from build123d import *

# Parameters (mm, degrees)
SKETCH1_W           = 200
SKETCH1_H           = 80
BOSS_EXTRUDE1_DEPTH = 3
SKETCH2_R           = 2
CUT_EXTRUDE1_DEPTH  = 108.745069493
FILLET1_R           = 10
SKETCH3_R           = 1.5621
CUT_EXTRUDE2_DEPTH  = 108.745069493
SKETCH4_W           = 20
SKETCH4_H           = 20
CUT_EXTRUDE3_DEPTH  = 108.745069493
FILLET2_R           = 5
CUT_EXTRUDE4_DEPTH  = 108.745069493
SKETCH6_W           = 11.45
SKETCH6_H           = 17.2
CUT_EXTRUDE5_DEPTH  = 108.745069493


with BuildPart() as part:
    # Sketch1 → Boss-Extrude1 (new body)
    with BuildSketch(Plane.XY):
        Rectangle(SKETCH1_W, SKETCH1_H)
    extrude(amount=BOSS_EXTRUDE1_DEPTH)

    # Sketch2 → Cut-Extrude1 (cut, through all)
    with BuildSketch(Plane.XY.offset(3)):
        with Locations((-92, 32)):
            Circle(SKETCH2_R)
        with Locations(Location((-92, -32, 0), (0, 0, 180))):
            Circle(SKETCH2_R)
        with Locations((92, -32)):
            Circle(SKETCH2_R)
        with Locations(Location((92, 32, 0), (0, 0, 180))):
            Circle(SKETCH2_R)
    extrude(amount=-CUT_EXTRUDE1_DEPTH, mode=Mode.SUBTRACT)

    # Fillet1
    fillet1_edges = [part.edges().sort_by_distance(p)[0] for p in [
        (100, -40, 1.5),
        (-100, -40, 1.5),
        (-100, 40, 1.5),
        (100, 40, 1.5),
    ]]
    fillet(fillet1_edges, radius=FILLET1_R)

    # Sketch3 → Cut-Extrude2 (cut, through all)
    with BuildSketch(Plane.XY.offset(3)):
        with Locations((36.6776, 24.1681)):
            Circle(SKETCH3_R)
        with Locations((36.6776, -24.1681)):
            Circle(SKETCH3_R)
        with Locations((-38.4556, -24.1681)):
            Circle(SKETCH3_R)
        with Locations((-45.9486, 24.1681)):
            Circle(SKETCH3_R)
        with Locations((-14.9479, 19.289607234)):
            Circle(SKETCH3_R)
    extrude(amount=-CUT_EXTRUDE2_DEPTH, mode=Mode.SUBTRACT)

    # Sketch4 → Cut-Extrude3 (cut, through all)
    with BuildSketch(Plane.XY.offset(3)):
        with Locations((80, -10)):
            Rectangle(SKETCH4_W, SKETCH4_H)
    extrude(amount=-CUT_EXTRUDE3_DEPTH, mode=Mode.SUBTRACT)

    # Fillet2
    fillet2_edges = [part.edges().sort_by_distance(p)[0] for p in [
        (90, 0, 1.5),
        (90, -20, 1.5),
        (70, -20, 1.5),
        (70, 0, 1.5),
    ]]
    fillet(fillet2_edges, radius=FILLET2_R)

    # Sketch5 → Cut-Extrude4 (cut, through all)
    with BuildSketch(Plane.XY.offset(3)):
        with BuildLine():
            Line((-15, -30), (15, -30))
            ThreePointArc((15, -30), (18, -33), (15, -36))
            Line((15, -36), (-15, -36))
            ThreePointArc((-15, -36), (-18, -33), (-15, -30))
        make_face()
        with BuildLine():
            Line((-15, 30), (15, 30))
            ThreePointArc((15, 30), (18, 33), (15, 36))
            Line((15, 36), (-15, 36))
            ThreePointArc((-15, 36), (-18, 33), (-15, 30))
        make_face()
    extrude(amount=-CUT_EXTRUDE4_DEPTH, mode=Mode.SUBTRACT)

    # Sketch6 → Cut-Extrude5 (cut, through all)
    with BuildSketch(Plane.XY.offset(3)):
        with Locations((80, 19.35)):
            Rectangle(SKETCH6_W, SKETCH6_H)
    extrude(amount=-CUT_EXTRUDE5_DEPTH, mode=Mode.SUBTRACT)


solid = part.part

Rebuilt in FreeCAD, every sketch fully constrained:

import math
import FreeCAD as App
import Part
import Sketcher
from FreeCAD import Vector
Q = App.Units.Quantity


def edges_at(feature, points):
    """Names of the edges that pass closest to the given points."""
    edges = feature.Shape.Edges
    near = lambda p: min(range(len(edges)), key=lambda i: edges[i].distToShape(Part.Vertex(*p))[0])
    return sorted({f"Edge{near(p) + 1}" for p in points})

doc = App.newDocument("Part")
body = doc.addObject("PartDesign::Body", "Body")

sketch1 = body.newObject("Sketcher::SketchObject", "Sketch")
sketch1.AttachmentSupport = (doc.getObject("XY_Plane"), [""])
sketch1.MapMode = "FlatFace"
sketch1.addGeometry(Part.LineSegment(Vector(-100, 40, 0), Vector(-100, -40, 0)), False)
sketch1.addGeometry(Part.LineSegment(Vector(-100, -40, 0), Vector(100, -40, 0)), False)
sketch1.addGeometry(Part.LineSegment(Vector(100, -40, 0), Vector(100, 40, 0)), False)
sketch1.addGeometry(Part.LineSegment(Vector(100, 40, 0), Vector(-100, 40, 0)), False)
sketch1.addConstraint(Sketcher.Constraint("Coincident", 0, 2, 1, 1))
sketch1.addConstraint(Sketcher.Constraint("Coincident", 1, 2, 2, 1))
sketch1.addConstraint(Sketcher.Constraint("Coincident", 2, 2, 3, 1))
sketch1.addConstraint(Sketcher.Constraint("Coincident", 3, 2, 0, 1))
sketch1.addConstraint(Sketcher.Constraint("Vertical", 0))
sketch1.addConstraint(Sketcher.Constraint("Horizontal", 1))
sketch1.addConstraint(Sketcher.Constraint("Vertical", 2))
sketch1.addConstraint(Sketcher.Constraint("Horizontal", 3))
sketch1.addConstraint(Sketcher.Constraint("Symmetric", 0, 2, 2, 2, -1, 1))
sketch1.addConstraint(Sketcher.Constraint("DistanceX", 1, 1, 1, 2, Q("200 mm")))
sketch1.addConstraint(Sketcher.Constraint("DistanceY", 0, 2, 0, 1, Q("80 mm")))
pad1 = body.newObject("PartDesign::Pad", "Pad")
pad1.Profile = sketch1
pad1.Length = 3

sketch2 = body.newObject("Sketcher::SketchObject", "Sketch001")
sketch2.AttachmentSupport = (doc.getObject("XY_Plane"), [""])
sketch2.MapMode = "FlatFace"
sketch2.AttachmentOffset = App.Placement(Vector(0, 0, 3), App.Rotation())
sketch2.addGeometry(Part.Circle(Vector(-92, 32, 0), Vector(0, 0, 1), 2), False)
sketch2.addGeometry(Part.Circle(Vector(-92, -32, 0), Vector(0, 0, 1), 2), False)
sketch2.addGeometry(Part.Circle(Vector(92, -32, 0), Vector(0, 0, 1), 2), False)
sketch2.addGeometry(Part.Circle(Vector(92, 32, 0), Vector(0, 0, 1), 2), False)
sketch2.addConstraint(Sketcher.Constraint("Equal", 0, 1))
sketch2.addConstraint(Sketcher.Constraint("Equal", 1, 2))
sketch2.addConstraint(Sketcher.Constraint("Equal", 2, 3))
sketch2.addConstraint(Sketcher.Constraint("Symmetric", 0, 3, 2, 3, -1, 1))
sketch2.addConstraint(Sketcher.Constraint("Symmetric", 1, 3, 3, 3, -1, 1))
sketch2.addConstraint(Sketcher.Constraint("Symmetric", 1, 3, 2, 3, -2))
sketch2.addConstraint(Sketcher.Constraint("Diameter", 0, Q("4 mm")))
sketch2.addConstraint(Sketcher.Constraint("DistanceX", 0, 3, -1, 1, Q("92 mm")))
sketch2.addConstraint(Sketcher.Constraint("DistanceY", -1, 1, 0, 3, Q("32 mm")))
pocket1 = body.newObject("PartDesign::Pocket", "Pocket")
pocket1.Profile = sketch2
pocket1.Type = "ThroughAll"
doc.recompute()

fillet = body.newObject("PartDesign::Fillet", "Fillet")
fillet.Base = (pocket1, edges_at(pocket1, [
    (100, -40, 1.5),
    (-100, -40, 1.5),
    (-100, 40, 1.5),
    (100, 40, 1.5),
]))
fillet.Radius = 10

sketch3 = body.newObject("Sketcher::SketchObject", "Sketch002")
sketch3.AttachmentSupport = (doc.getObject("XY_Plane"), [""])
sketch3.MapMode = "FlatFace"
sketch3.AttachmentOffset = App.Placement(Vector(0, 0, 3), App.Rotation())
sketch3.addGeometry(Part.Circle(Vector(36.6776, 24.1681, 0), Vector(0, 0, 1), 1.5621), False)
sketch3.addGeometry(Part.Circle(Vector(36.6776, -24.1681, 0), Vector(0, 0, 1), 1.5621), False)
sketch3.addGeometry(Part.Circle(Vector(-38.4556, -24.1681, 0), Vector(0, 0, 1), 1.5621), False)
sketch3.addGeometry(Part.Circle(Vector(-45.9486, 24.1681, 0), Vector(0, 0, 1), 1.5621), False)
sketch3.addGeometry(Part.Circle(Vector(-14.9479, 19.289607, 0), Vector(0, 0, 1), 1.5621), False)
sketch3.addConstraint(Sketcher.Constraint("Equal", 0, 1))
sketch3.addConstraint(Sketcher.Constraint("Equal", 1, 2))
sketch3.addConstraint(Sketcher.Constraint("Equal", 2, 3))
sketch3.addConstraint(Sketcher.Constraint("Equal", 3, 4))
sketch3.addConstraint(Sketcher.Constraint("Symmetric", 0, 3, 1, 3, -1))
sketch3.addConstraint(Sketcher.Constraint("Horizontal", 1, 3, 2, 3))
sketch3.addConstraint(Sketcher.Constraint("Horizontal", 0, 3, 3, 3))
sketch3.addConstraint(Sketcher.Constraint("Diameter", 0, Q("3.1242 mm")))
sketch3.addConstraint(Sketcher.Constraint("DistanceX", 3, 3, 2, 3, Q("7.493 mm")))
sketch3.addConstraint(Sketcher.Constraint("DistanceX", -1, 1, 0, 3, Q("36.6776 mm")))
sketch3.addConstraint(Sketcher.Constraint("DistanceY", -1, 1, 0, 3, Q("24.1681 mm")))
sketch3.addConstraint(Sketcher.Constraint("DistanceX", 2, 3, -1, 1, Q("38.4556 mm")))
sketch3.addConstraint(Sketcher.Constraint("DistanceX", 4, 3, -1, 1, Q("14.9479 mm")))
sketch3.addConstraint(Sketcher.Constraint("DistanceY", -1, 1, 4, 3, Q("19.289607 mm")))
pocket2 = body.newObject("PartDesign::Pocket", "Pocket001")
pocket2.Profile = sketch3
pocket2.Type = "ThroughAll"

sketch4 = body.newObject("Sketcher::SketchObject", "Sketch003")
sketch4.AttachmentSupport = (doc.getObject("XY_Plane"), [""])
sketch4.MapMode = "FlatFace"
sketch4.AttachmentOffset = App.Placement(Vector(0, 0, 3), App.Rotation())
sketch4.addGeometry(Part.LineSegment(Vector(70, 0, 0), Vector(70, -20, 0)), False)
sketch4.addGeometry(Part.LineSegment(Vector(70, -20, 0), Vector(90, -20, 0)), False)
sketch4.addGeometry(Part.LineSegment(Vector(90, -20, 0), Vector(90, 0, 0)), False)
sketch4.addGeometry(Part.LineSegment(Vector(90, 0, 0), Vector(70, 0, 0)), False)
sketch4.addConstraint(Sketcher.Constraint("Coincident", 0, 2, 1, 1))
sketch4.addConstraint(Sketcher.Constraint("Coincident", 1, 2, 2, 1))
sketch4.addConstraint(Sketcher.Constraint("Coincident", 2, 2, 3, 1))
sketch4.addConstraint(Sketcher.Constraint("Coincident", 3, 2, 0, 1))
sketch4.addConstraint(Sketcher.Constraint("Vertical", 0))
sketch4.addConstraint(Sketcher.Constraint("Horizontal", 1))
sketch4.addConstraint(Sketcher.Constraint("Vertical", 2))
sketch4.addConstraint(Sketcher.Constraint("Horizontal", 3))
sketch4.addConstraint(Sketcher.Constraint("PointOnObject", 2, 2, -1))
sketch4.addConstraint(Sketcher.Constraint("Equal", 3, 0))
sketch4.addConstraint(Sketcher.Constraint("DistanceX", 1, 1, 1, 2, Q("20 mm")))
sketch4.addConstraint(Sketcher.Constraint("DistanceX", -1, 1, 0, 2, Q("70 mm")))
pocket3 = body.newObject("PartDesign::Pocket", "Pocket002")
pocket3.Profile = sketch4
pocket3.Type = "ThroughAll"
doc.recompute()

fillet2 = body.newObject("PartDesign::Fillet", "Fillet001")
fillet2.Base = (pocket3, edges_at(pocket3, [
    (90, 0, 1.5),
    (90, -20, 1.5),
    (70, -20, 1.5),
    (70, 0, 1.5),
]))
fillet2.Radius = 5

sketch5 = body.newObject("Sketcher::SketchObject", "Sketch004")
sketch5.AttachmentSupport = (doc.getObject("XY_Plane"), [""])
sketch5.MapMode = "FlatFace"
sketch5.AttachmentOffset = App.Placement(Vector(0, 0, 3), App.Rotation())
sketch5.addGeometry(Part.LineSegment(Vector(15, -30, 0), Vector(-15, -30, 0)), False)
sketch5.addGeometry(Part.ArcOfCircle(Part.Circle(Vector(-15, -33, 0), Vector(0, 0, 1), 3), math.radians(90), math.radians(270)), False)
sketch5.addGeometry(Part.LineSegment(Vector(-15, -36, 0), Vector(15, -36, 0)), False)
sketch5.addGeometry(Part.ArcOfCircle(Part.Circle(Vector(15, -33, 0), Vector(0, 0, 1), 3), math.radians(-90), math.radians(90)), False)
sketch5.addGeometry(Part.LineSegment(Vector(-15, 30, 0), Vector(15, 30, 0)), False)
sketch5.addGeometry(Part.ArcOfCircle(Part.Circle(Vector(15, 33, 0), Vector(0, 0, 1), 3), math.radians(-90), math.radians(90)), False)
sketch5.addGeometry(Part.LineSegment(Vector(15, 36, 0), Vector(-15, 36, 0)), False)
sketch5.addGeometry(Part.ArcOfCircle(Part.Circle(Vector(-15, 33, 0), Vector(0, 0, 1), 3), math.radians(90), math.radians(270)), False)
sketch5.addConstraint(Sketcher.Constraint("Tangent", 0, 2, 1, 1))
sketch5.addConstraint(Sketcher.Constraint("Tangent", 1, 2, 2, 1))
sketch5.addConstraint(Sketcher.Constraint("Tangent", 2, 2, 3, 1))
sketch5.addConstraint(Sketcher.Constraint("Tangent", 3, 2, 0, 1))
sketch5.addConstraint(Sketcher.Constraint("Tangent", 4, 2, 5, 1))
sketch5.addConstraint(Sketcher.Constraint("Tangent", 5, 2, 6, 1))
sketch5.addConstraint(Sketcher.Constraint("Tangent", 6, 2, 7, 1))
sketch5.addConstraint(Sketcher.Constraint("Tangent", 7, 2, 4, 1))
sketch5.addConstraint(Sketcher.Constraint("Horizontal", 0))
sketch5.addConstraint(Sketcher.Constraint("Horizontal", 2))
sketch5.addConstraint(Sketcher.Constraint("Horizontal", 4))
sketch5.addConstraint(Sketcher.Constraint("Horizontal", 6))
sketch5.addConstraint(Sketcher.Constraint("Equal", 3, 5))
sketch5.addConstraint(Sketcher.Constraint("Symmetric", 1, 3, 5, 3, -1, 1))
sketch5.addConstraint(Sketcher.Constraint("Vertical", 3, 3, 5, 3))
sketch5.addConstraint(Sketcher.Constraint("Vertical", 1, 3, 7, 3))
sketch5.addConstraint(Sketcher.Constraint("Radius", 1, Q("3 mm")))
sketch5.addConstraint(Sketcher.Constraint("DistanceX", 0, 2, 0, 1, Q("30 mm")))
sketch5.addConstraint(Sketcher.Constraint("DistanceY", 1, 3, -1, 1, Q("33 mm")))
pocket4 = body.newObject("PartDesign::Pocket", "Pocket003")
pocket4.Profile = sketch5
pocket4.Type = "ThroughAll"

sketch6 = body.newObject("Sketcher::SketchObject", "Sketch005")
sketch6.AttachmentSupport = (doc.getObject("XY_Plane"), [""])
sketch6.MapMode = "FlatFace"
sketch6.AttachmentOffset = App.Placement(Vector(0, 0, 3), App.Rotation())
sketch6.addGeometry(Part.LineSegment(Vector(74.275, 27.95, 0), Vector(74.275, 10.75, 0)), False)
sketch6.addGeometry(Part.LineSegment(Vector(74.275, 10.75, 0), Vector(85.725, 10.75, 0)), False)
sketch6.addGeometry(Part.LineSegment(Vector(85.725, 10.75, 0), Vector(85.725, 27.95, 0)), False)
sketch6.addGeometry(Part.LineSegment(Vector(85.725, 27.95, 0), Vector(74.275, 27.95, 0)), False)
sketch6.addConstraint(Sketcher.Constraint("Coincident", 0, 2, 1, 1))
sketch6.addConstraint(Sketcher.Constraint("Coincident", 1, 2, 2, 1))
sketch6.addConstraint(Sketcher.Constraint("Coincident", 2, 2, 3, 1))
sketch6.addConstraint(Sketcher.Constraint("Coincident", 3, 2, 0, 1))
sketch6.addConstraint(Sketcher.Constraint("Vertical", 0))
sketch6.addConstraint(Sketcher.Constraint("Horizontal", 1))
sketch6.addConstraint(Sketcher.Constraint("Vertical", 2))
sketch6.addConstraint(Sketcher.Constraint("Horizontal", 3))
sketch6.addConstraint(Sketcher.Constraint("DistanceY", 0, 2, 0, 1, Q("17.2 mm")))
sketch6.addConstraint(Sketcher.Constraint("DistanceX", 1, 1, 1, 2, Q("11.45 mm")))
sketch6.addConstraint(Sketcher.Constraint("DistanceY", -1, 1, 0, 2, Q("10.75 mm")))
sketch6.addConstraint(Sketcher.Constraint("DistanceX", -1, 1, 0, 2, Q("74.275 mm")))
pocket5 = body.newObject("PartDesign::Pocket", "Pocket004")
pocket5.Profile = sketch6
pocket5.Type = "ThroughAll"

doc.recompute()
